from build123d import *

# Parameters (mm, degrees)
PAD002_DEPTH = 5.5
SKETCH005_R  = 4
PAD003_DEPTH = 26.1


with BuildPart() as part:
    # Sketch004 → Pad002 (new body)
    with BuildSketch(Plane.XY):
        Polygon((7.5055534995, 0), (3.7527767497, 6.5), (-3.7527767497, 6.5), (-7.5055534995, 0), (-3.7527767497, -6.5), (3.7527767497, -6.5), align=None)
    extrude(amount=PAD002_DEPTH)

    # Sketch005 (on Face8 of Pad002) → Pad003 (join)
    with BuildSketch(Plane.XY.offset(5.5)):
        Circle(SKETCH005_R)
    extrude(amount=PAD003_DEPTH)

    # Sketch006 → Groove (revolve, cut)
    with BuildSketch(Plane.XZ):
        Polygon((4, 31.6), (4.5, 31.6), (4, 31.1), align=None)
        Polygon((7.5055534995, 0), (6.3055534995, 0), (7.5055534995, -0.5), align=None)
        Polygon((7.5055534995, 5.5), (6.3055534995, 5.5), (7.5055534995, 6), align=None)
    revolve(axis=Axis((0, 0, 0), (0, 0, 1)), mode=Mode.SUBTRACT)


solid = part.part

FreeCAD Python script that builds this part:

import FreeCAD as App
import Part
import Sketcher
Q = App.Units.Quantity


def add_polygon(sketch, points):
    """Adds a closed chain of lines whose ends are joined by coincident constraints."""
    first, n = sketch.GeometryCount, len(points)
    for a, b in zip(points, points[1:] + points[:1]):
        sketch.addGeometry(Part.LineSegment(App.Vector(*a, 0), App.Vector(*b, 0)), False)
    for i in range(n):
        sketch.addConstraint(Sketcher.Constraint("Coincident", first + i, 2, first + (i + 1) % n, 1))

doc = App.newDocument("Part")
body = doc.addObject("PartDesign::Body", "Body")

# Sketch on XY plane
sketch1 = body.newObject("Sketcher::SketchObject", "Sketch")
sketch1.AttachmentSupport = (doc.getObject("XY_Plane"), [""])
sketch1.MapMode = "FlatFace"
add_polygon(sketch1, [(8, 0), (4, 6), (-4, 6), (-8, 0), (-4, -6), (4, -6)])  # lines 0-5
sketch1.addConstraint(Sketcher.Constraint("Horizontal", 1))
sketch1.addConstraint(Sketcher.Constraint("Horizontal", 4))
sketch1.addConstraint(Sketcher.Constraint("Symmetric", 0, 2, 3, 2, -1, 1))
sketch1.addConstraint(Sketcher.Constraint("Symmetric", 2, 2, 5, 2, -1, 1))
sketch1.addConstraint(Sketcher.Constraint("PointOnObject", 2, 2, -1))
sketch1.addConstraint(Sketcher.Constraint("Parallel", 2, 5))
sketch1.addConstraint(Sketcher.Constraint("Vertical", 1, 2, 3, 2))
sketch1.addConstraint(Sketcher.Constraint("Angle", 0, Q("120 deg")))
sketch1.addConstraint(Sketcher.Constraint("DistanceY", 3, 2, 1, 2, Q("13 mm")))
sketch1.addConstraint(Sketcher.Constraint("DistanceX", 1, 2, 1, 1, Q("7.505554 mm")))
pad1 = body.newObject("PartDesign::Pad", "Pad")
pad1.Profile = sketch1
pad1.Length = 5.5

# Sketch on XY plane
sketch2 = body.newObject("Sketcher::SketchObject", "Sketch001")
sketch2.AttachmentSupport = (doc.getObject("XY_Plane"), [""])
sketch2.MapMode = "FlatFace"
sketch2.AttachmentOffset = App.Placement(App.Vector(0, 0, 5.5), App.Rotation())
sketch2.addGeometry(Part.Circle(App.Vector(0, 0, 0), App.Vector(0, 0, 1), 4), False)
sketch2.addConstraint(Sketcher.Constraint("Coincident", 0, 3, -1, 1))
sketch2.addConstraint(Sketcher.Constraint("Diameter", 0, Q("8 mm")))
pad2 = body.newObject("PartDesign::Pad", "Pad001")
pad2.Profile = sketch2
pad2.Length = 26.1

# Sketch on XZ plane
sketch3 = body.newObject("Sketcher::SketchObject", "Sketch002")
sketch3.AttachmentSupport = (doc.getObject("XZ_Plane"), [""])
sketch3.MapMode = "FlatFace"
add_polygon(sketch3, [(4.5, 31.6), (4, 31.6), (4, 31.1)])  # lines 0-2
add_polygon(sketch3, [(7.5, 0), (6.3, 0), (7.5, -0.5)])  # lines 3-5
add_polygon(sketch3, [(6.3, 5.5), (7.5, 5.5), (7.5, 6)])  # lines 6-8
sketch3.addConstraint(Sketcher.Constraint("Horizontal", 0))
sketch3.addConstraint(Sketcher.Constraint("Vertical", 1))
sketch3.addConstraint(Sketcher.Constraint("Horizontal", 3))
sketch3.addConstraint(Sketcher.Constraint("Vertical", 5))
sketch3.addConstraint(Sketcher.Constraint("Horizontal", 6))
sketch3.addConstraint(Sketcher.Constraint("Vertical", 7))
sketch3.addConstraint(Sketcher.Constraint("PointOnObject", 3, 2, -1))
sketch3.addConstraint(Sketcher.Constraint("Vertical", 5, 2, 6, 2))
sketch3.addConstraint(Sketcher.Constraint("Vertical", 3, 2, 8, 2))
sketch3.addConstraint(Sketcher.Constraint("Equal", 0, 1))
sketch3.addConstraint(Sketcher.Constraint("Equal", 1, 5))
sketch3.addConstraint(Sketcher.Constraint("Equal", 5, 7))
sketch3.addConstraint(Sketcher.Constraint("DistanceX", 0, 2, 0, 1, Q("0.5 mm")))
sketch3.addConstraint(Sketcher.Constraint("DistanceX", 3, 2, 3, 1, Q("1.2 mm")))
sketch3.addConstraint(Sketcher.Constraint("DistanceX", -1, 1, 0, 2, Q("4 mm")))
sketch3.addConstraint(Sketcher.Constraint("DistanceY", -1, 1, 7, 2, Q("6 mm")))
sketch3.addConstraint(Sketcher.Constraint("DistanceY", -1, 1, 0, 2, Q("31.6 mm")))
sketch3.addConstraint(Sketcher.Constraint("DistanceX", -1, 1, 3, 2, Q("6.305554 mm")))
groove = body.newObject("PartDesign::Groove", "Groove")
groove.Profile = sketch3
groove.ReferenceAxis = (sketch3, ["V_Axis"])
groove.Angle = 360

doc.recompute()
